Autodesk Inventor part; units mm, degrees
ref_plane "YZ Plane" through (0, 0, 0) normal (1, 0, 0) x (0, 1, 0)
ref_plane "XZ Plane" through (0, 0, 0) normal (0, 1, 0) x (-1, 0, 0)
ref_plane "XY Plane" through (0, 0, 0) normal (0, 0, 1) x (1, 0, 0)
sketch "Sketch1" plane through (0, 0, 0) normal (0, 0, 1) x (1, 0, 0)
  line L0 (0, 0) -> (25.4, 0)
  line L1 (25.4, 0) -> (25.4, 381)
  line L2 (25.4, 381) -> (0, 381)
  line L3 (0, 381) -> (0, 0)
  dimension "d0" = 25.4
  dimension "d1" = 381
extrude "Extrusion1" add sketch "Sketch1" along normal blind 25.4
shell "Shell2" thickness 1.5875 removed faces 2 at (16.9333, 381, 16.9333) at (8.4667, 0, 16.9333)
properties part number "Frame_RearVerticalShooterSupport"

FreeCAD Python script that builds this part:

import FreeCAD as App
import Part
import Sketcher

V = App.Vector
Q = App.Units.Quantity


def faces_at(feature, points):
    """Names of the faces that lie closest to the given points."""
    faces = feature.Shape.Faces
    near = lambda p: min(range(len(faces)), key=lambda i: faces[i].distToShape(Part.Vertex(*p))[0])
    return sorted({f"Face{near(p) + 1}" for p in points})


def add_polygon(sketch, points):
    """Adds a closed chain of lines whose ends are joined by coincident constraints."""
    first, n = sketch.GeometryCount, len(points)
    for a, b in zip(points, points[1:] + points[:1]):
        sketch.addGeometry(Part.LineSegment(App.Vector(*a, 0), App.Vector(*b, 0)), False)
    for i in range(n):
        sketch.addConstraint(Sketcher.Constraint("Coincident", first + i, 2, first + (i + 1) % n, 1))

doc = App.newDocument("Part")
body = doc.addObject("PartDesign::Body", "Body")

# Sketch on XY plane
sketch1 = doc.addObject("Sketcher::SketchObject", "Sketch")
body.addObject(sketch1)
sketch1.AttachmentSupport = (doc.XY_Plane, [""])
sketch1.MapMode = "FlatFace"
add_polygon(sketch1, [(0, 381), (0, 0), (25, 0), (25, 381)])  # lines 0-3
sketch1.addConstraint([
    Sketcher.Constraint("Vertical", 0),
    Sketcher.Constraint("Horizontal", 1),
    Sketcher.Constraint("Vertical", 2),
    Sketcher.Constraint("Horizontal", 3),
    Sketcher.Constraint("Coincident", 0, 2, -1, 1),
    Sketcher.Constraint("DistanceX", 1, 1, 1, 2, Q("1 in")),
    Sketcher.Constraint("DistanceY", 0, 2, 0, 1, Q("15 in")),
])
pad1 = doc.addObject("PartDesign::Pad", "Pad")
body.addObject(pad1)
pad1.Profile = sketch1
pad1.Length = Q("1 in")
doc.recompute()

thickness = doc.addObject("PartDesign::Thickness", "Thickness")
body.addObject(thickness)
thickness.Base = (pad1, faces_at(pad1, [(16.933, 381, 16.933), (8.467, 0, 16.933)]))
thickness.Value = Q("0.0625 in")
thickness.Reversed = True
thickness.Join = "Intersection"

doc.recompute()
